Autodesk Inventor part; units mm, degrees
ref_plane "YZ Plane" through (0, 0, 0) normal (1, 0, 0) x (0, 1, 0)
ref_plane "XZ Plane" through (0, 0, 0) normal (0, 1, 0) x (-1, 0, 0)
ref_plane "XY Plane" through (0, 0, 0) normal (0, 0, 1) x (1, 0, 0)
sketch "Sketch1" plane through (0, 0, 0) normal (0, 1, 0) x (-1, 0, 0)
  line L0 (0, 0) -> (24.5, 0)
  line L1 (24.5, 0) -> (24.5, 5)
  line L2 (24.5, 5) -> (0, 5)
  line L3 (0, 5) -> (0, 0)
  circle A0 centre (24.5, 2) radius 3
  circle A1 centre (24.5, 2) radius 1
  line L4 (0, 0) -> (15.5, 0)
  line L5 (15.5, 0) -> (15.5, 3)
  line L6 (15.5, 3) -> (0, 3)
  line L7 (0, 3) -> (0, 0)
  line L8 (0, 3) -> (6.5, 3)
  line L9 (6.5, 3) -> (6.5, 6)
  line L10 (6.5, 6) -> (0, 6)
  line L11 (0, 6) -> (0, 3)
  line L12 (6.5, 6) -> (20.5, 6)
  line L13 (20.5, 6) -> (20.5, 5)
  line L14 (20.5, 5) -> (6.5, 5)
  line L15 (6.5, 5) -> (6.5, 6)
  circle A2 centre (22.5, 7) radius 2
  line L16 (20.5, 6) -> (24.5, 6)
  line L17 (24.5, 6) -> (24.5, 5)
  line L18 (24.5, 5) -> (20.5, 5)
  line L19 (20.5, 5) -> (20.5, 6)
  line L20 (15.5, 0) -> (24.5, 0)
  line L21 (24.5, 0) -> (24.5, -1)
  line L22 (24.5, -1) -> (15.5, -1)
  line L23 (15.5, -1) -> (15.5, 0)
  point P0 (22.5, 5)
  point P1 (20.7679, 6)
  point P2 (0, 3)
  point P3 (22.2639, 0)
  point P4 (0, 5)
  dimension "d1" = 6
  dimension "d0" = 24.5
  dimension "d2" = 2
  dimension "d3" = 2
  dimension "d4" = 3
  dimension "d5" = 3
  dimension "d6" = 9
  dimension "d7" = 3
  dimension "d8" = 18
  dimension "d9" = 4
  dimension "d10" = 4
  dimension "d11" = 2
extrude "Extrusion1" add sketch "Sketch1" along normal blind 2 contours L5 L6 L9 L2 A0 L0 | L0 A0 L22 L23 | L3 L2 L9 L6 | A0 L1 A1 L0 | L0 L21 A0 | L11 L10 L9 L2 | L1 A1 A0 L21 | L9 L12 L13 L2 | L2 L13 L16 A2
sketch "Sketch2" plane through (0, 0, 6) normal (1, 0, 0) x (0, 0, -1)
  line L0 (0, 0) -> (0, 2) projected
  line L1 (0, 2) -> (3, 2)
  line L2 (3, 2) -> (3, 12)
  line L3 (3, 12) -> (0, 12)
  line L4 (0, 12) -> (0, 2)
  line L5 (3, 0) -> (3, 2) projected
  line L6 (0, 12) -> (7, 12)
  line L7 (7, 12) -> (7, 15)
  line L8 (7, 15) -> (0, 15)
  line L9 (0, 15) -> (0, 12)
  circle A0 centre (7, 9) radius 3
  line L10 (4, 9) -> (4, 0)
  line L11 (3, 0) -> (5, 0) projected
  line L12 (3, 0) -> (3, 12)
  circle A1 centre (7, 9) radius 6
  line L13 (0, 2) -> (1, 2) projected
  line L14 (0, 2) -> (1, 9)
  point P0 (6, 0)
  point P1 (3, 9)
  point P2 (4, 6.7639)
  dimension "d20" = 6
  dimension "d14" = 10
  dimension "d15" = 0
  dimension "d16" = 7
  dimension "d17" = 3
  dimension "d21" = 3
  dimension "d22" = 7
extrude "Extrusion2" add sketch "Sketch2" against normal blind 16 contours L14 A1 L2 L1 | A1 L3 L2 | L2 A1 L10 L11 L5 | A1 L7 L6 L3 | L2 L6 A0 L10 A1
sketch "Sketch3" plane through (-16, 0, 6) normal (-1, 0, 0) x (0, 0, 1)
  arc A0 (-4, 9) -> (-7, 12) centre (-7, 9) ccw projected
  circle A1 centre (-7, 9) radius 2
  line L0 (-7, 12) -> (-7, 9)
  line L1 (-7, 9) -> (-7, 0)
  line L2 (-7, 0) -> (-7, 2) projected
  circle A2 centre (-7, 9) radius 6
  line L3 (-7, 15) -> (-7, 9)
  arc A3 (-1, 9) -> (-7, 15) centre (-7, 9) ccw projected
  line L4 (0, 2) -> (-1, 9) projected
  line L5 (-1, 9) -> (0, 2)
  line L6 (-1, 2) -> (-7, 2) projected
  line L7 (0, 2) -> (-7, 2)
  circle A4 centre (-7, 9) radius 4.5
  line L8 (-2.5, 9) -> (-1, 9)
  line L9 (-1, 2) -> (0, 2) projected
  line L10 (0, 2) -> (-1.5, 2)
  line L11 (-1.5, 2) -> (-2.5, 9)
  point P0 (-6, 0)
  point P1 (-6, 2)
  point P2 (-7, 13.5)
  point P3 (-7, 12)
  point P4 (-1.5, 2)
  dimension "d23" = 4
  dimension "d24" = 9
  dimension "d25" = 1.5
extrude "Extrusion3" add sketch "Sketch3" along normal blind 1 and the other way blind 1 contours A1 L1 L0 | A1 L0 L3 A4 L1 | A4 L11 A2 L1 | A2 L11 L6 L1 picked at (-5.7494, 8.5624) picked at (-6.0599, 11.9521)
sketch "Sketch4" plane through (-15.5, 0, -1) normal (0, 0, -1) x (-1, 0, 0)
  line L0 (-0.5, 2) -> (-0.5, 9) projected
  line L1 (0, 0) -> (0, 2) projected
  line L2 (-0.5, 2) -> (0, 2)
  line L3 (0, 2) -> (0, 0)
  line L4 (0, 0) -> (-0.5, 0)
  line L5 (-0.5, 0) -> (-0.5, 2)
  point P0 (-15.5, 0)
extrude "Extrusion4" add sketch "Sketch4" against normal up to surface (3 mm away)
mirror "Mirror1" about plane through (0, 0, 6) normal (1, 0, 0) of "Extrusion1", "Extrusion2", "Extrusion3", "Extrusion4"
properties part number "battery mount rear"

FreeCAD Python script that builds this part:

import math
import FreeCAD as App
import Part
import Sketcher
Q = App.Units.Quantity


def add_polygon(sketch, points):
    """Adds a closed chain of lines whose ends are joined by coincident constraints."""
    first, n = sketch.GeometryCount, len(points)
    for a, b in zip(points, points[1:] + points[:1]):
        sketch.addGeometry(Part.LineSegment(App.Vector(*a, 0), App.Vector(*b, 0)), False)
    for i in range(n):
        sketch.addConstraint(Sketcher.Constraint("Coincident", first + i, 2, first + (i + 1) % n, 1))

doc = App.newDocument("Part")
params = doc.addObject("Spreadsheet::Sheet", "Params")
for row, (alias, value) in enumerate([
    ("sketch1_diameter", "2 mm"),
    ("sketch1_radius", "3 mm"),
    ("sketch1_radius2", "2 mm"),
    ("sketch1_width", "9 mm"),
    ("sketch1_width2", "2 mm"),
    ("pad1_length", "2 mm"),
    ("sketch2_radius", "3 mm"),
    ("sketch2_radius2", "6 mm"),
    ("sketch2_width", "2 mm"),
    ("pad2_length", "16 mm"),
    ("sketch3_radius", "4.5 mm"),
    ("sketch3_width", "11.5 mm"),
    ("sketch3_height", "5.5 mm"),
    ("pad3_length", "1 mm"),
    ("pad3_length2", "1 mm"),
    ("sketch4_height", "2 mm"),
    ("sketch4_width", "0.5 mm"),
    ("pad4_length", "3 mm"),
], start=1):
    params.set(f"A{row}", alias)
    params.set(f"B{row}", "=" + value)
    params.setAlias(f"B{row}", alias)

body = doc.addObject("PartDesign::Body", "Body")

sketch1 = doc.addObject("Sketcher::SketchObject", "Sketch")
body.addObject(sketch1)
sketch1.AttachmentSupport = (doc.XZ_Plane, [""])
sketch1.MapMode = "FlatFace"
sketch1.addGeometry(Part.LineSegment(App.Vector(-15.5, 3, 0), App.Vector(-15.5, -1, 0)), False)
sketch1.addGeometry(Part.LineSegment(App.Vector(-15.5, -1, 0), App.Vector(-24.5, -1, 0)), False)
sketch1.addGeometry(Part.ArcOfCircle(Part.Circle(App.Vector(-24.5, 2, 0), App.Vector(0, 0, 1), 3), math.radians(90), math.radians(270)), False)
sketch1.addGeometry(Part.LineSegment(App.Vector(-24.5, 5, 0), App.Vector(-22.5, 5, 0)), False)
sketch1.addGeometry(Part.ArcOfCircle(Part.Circle(App.Vector(-22.5, 7, 0), App.Vector(0, 0, 1), 2), math.radians(-90), math.radians(-30)), False)
sketch1.addGeometry(Part.LineSegment(App.Vector(-20.8, 6, 0), App.Vector(0, 6, 0)), False)
sketch1.addGeometry(Part.LineSegment(App.Vector(0, 6, 0), App.Vector(0, 3, 0)), False)
sketch1.addGeometry(Part.LineSegment(App.Vector(0, 3, 0), App.Vector(-15.5, 3, 0)), False)
sketch1.addGeometry(Part.Circle(App.Vector(-24.5, 2, 0), App.Vector(0, 0, 1), 1), False)
sketch1.addConstraint(Sketcher.Constraint("Coincident", 0, 2, 1, 1))
sketch1.addConstraint(Sketcher.Constraint("Tangent", 1, 2, 2, 2))
sketch1.addConstraint(Sketcher.Constraint("Tangent", 2, 1, 3, 1))
sketch1.addConstraint(Sketcher.Constraint("Tangent", 3, 2, 4, 1))
sketch1.addConstraint(Sketcher.Constraint("Coincident", 4, 2, 5, 1))
sketch1.addConstraint(Sketcher.Constraint("Coincident", 5, 2, 6, 1))
sketch1.addConstraint(Sketcher.Constraint("Coincident", 6, 2, 7, 1))
sketch1.addConstraint(Sketcher.Constraint("Coincident", 7, 2, 0, 1))
sketch1.addConstraint(Sketcher.Constraint("Vertical", 0))
sketch1.addConstraint(Sketcher.Constraint("Horizontal", 1))
sketch1.addConstraint(Sketcher.Constraint("Horizontal", 3))
sketch1.addConstraint(Sketcher.Constraint("Horizontal", 5))
sketch1.addConstraint(Sketcher.Constraint("Vertical", 6))
sketch1.addConstraint(Sketcher.Constraint("Horizontal", 7))
sketch1.addConstraint(Sketcher.Constraint("Coincident", 8, 3, 2, 3))
sketch1.addConstraint(Sketcher.Constraint("PointOnObject", 5, 2, -2))
sketch1.addConstraint(Sketcher.Constraint("Diameter", 8, Q("2 mm")))
sketch1.addConstraint(Sketcher.Constraint("Radius", 2, Q("3 mm")))
sketch1.addConstraint(Sketcher.Constraint("Radius", 4, Q("2 mm")))
sketch1.addConstraint(Sketcher.Constraint("DistanceX", 1, 2, 1, 1, Q("9 mm")))
sketch1.addConstraint(Sketcher.Constraint("DistanceX", 3, 1, 3, 2, Q("2 mm")))
sketch1.addConstraint(Sketcher.Constraint("DistanceY", 0, 2, 0, 1, Q("4 mm")))
sketch1.addConstraint(Sketcher.Constraint("DistanceY", 6, 2, 6, 1, Q("3 mm")))
sketch1.addConstraint(Sketcher.Constraint("DistanceY", -1, 1, 2, 3, Q("2 mm")))
sketch1.addConstraint(Sketcher.Constraint("DistanceX", 2, 3, -1, 1, Q("24.5 mm")))
sketch1.setExpression("Constraints[16]", "Params.sketch1_diameter")
sketch1.setExpression("Constraints[17]", "Params.sketch1_radius")
sketch1.setExpression("Constraints[18]", "Params.sketch1_radius2")
sketch1.setExpression("Constraints[19]", "Params.sketch1_width")
sketch1.setExpression("Constraints[20]", "Params.sketch1_width2")
pad1 = doc.addObject("PartDesign::Pad", "Pad")
body.addObject(pad1)
pad1.Profile = sketch1
pad1.setExpression("Length", "Params.pad1_length")
pad1.Reversed = True

sketch2 = doc.addObject("Sketcher::SketchObject", "Sketch001")
body.addObject(sketch2)
sketch2.AttachmentSupport = (doc.YZ_Plane, [""])
sketch2.MapMode = "FlatFace"
sketch2.addGeometry(Part.LineSegment(App.Vector(9, 5, 0), App.Vector(2, 6, 0)), False)
sketch2.addGeometry(Part.LineSegment(App.Vector(2, 6, 0), App.Vector(2, 3, 0)), False)
sketch2.addGeometry(Part.LineSegment(App.Vector(2, 3, 0), App.Vector(0, 3, 0)), False)
sketch2.addGeometry(Part.LineSegment(App.Vector(0, 3, 0), App.Vector(0, 2, 0)), False)
sketch2.addGeometry(Part.LineSegment(App.Vector(0, 2, 0), App.Vector(9, 2, 0)), False)
sketch2.addGeometry(Part.ArcOfCircle(Part.Circle(App.Vector(9, -1, 0), App.Vector(0, 0, 1), 3), math.radians(0), math.radians(90)), False)
sketch2.addGeometry(Part.LineSegment(App.Vector(12, -1, 0), App.Vector(15, -1, 0)), False)
sketch2.addGeometry(Part.ArcOfCircle(Part.Circle(App.Vector(9, -1, 0), App.Vector(0, 0, 1), 6), math.radians(0), math.radians(90)), False)
sketch2.addConstraint(Sketcher.Constraint("Coincident", 0, 2, 1, 1))
sketch2.addConstraint(Sketcher.Constraint("Coincident", 1, 2, 2, 1))
sketch2.addConstraint(Sketcher.Constraint("Coincident", 2, 2, 3, 1))
sketch2.addConstraint(Sketcher.Constraint("Coincident", 3, 2, 4, 1))
sketch2.addConstraint(Sketcher.Constraint("Tangent", 4, 2, 5, 2))
sketch2.addConstraint(Sketcher.Constraint("Coincident", 5, 1, 6, 1))
sketch2.addConstraint(Sketcher.Constraint("Coincident", 6, 2, 7, 1))
sketch2.addConstraint(Sketcher.Constraint("Coincident", 7, 2, 0, 1))
sketch2.addConstraint(Sketcher.Constraint("Vertical", 1))
sketch2.addConstraint(Sketcher.Constraint("Horizontal", 2))
sketch2.addConstraint(Sketcher.Constraint("Vertical", 3))
sketch2.addConstraint(Sketcher.Constraint("Horizontal", 4))
sketch2.addConstraint(Sketcher.Constraint("Horizontal", 6))
sketch2.addConstraint(Sketcher.Constraint("Coincident", 7, 3, 5, 3))
sketch2.addConstraint(Sketcher.Constraint("PointOnObject", 2, 2, -2))
sketch2.addConstraint(Sketcher.Constraint("Horizontal", 7, 3, 5, 1))
sketch2.addConstraint(Sketcher.Constraint("Vertical", 4, 2, 7, 2))
sketch2.addConstraint(Sketcher.Constraint("Equal", 6, 1))
sketch2.addConstraint(Sketcher.Constraint("Radius", 5, Q("3 mm")))
sketch2.addConstraint(Sketcher.Constraint("Radius", 7, Q("6 mm")))
sketch2.addConstraint(Sketcher.Constraint("DistanceY", -1, 1, 0, 2, Q("6 mm")))
sketch2.addConstraint(Sketcher.Constraint("DistanceX", 0, 2, 5, 3, Q("7 mm")))
sketch2.addConstraint(Sketcher.Constraint("DistanceY", 5, 3, 0, 2, Q("7 mm")))
sketch2.addConstraint(Sketcher.Constraint("DistanceX", 2, 2, 2, 1, Q("2 mm")))
sketch2.setExpression("Constraints[18]", "Params.sketch2_radius")
sketch2.setExpression("Constraints[19]", "Params.sketch2_radius2")
sketch2.setExpression("Constraints[23]", "Params.sketch2_width")
pad2 = doc.addObject("PartDesign::Pad", "Pad001")
body.addObject(pad2)
pad2.Profile = sketch2
pad2.setExpression("Length", "Params.pad2_length")
pad2.Reversed = True

sketch3 = doc.addObject("Sketcher::SketchObject", "Sketch002")
body.addObject(sketch3)
sketch3.AttachmentSupport = (doc.YZ_Plane, [""])
sketch3.MapMode = "FlatFace"
sketch3.AttachmentOffset = App.Placement(App.Vector(0, 0, -16), App.Rotation())
sketch3.addGeometry(Part.LineSegment(App.Vector(2, -1, 0), App.Vector(2, 4.5, 0)), False)
sketch3.addGeometry(Part.LineSegment(App.Vector(2, 4.5, 0), App.Vector(9, 3.5, 0)), False)
sketch3.addGeometry(Part.ArcOfCircle(Part.Circle(App.Vector(9, -1, 0), App.Vector(0, 0, 1), 4.5), math.radians(0), math.radians(90)), False)
sketch3.addGeometry(Part.LineSegment(App.Vector(13.5, -1, 0), App.Vector(2, -1, 0)), False)
sketch3.addConstraint(Sketcher.Constraint("Coincident", 0, 2, 1, 1))
sketch3.addConstraint(Sketcher.Constraint("Coincident", 1, 2, 2, 2))
sketch3.addConstraint(Sketcher.Constraint("Coincident", 2, 1, 3, 1))
sketch3.addConstraint(Sketcher.Constraint("Coincident", 3, 2, 0, 1))
sketch3.addConstraint(Sketcher.Constraint("Vertical", 0))
sketch3.addConstraint(Sketcher.Constraint("Horizontal", 3))
sketch3.addConstraint(Sketcher.Constraint("Vertical", 2, 3, 1, 2))
sketch3.addConstraint(Sketcher.Constraint("Radius", 2, Q("4.5 mm")))
sketch3.addConstraint(Sketcher.Constraint("DistanceX", -1, 1, 2, 3, Q("9 mm")))
sketch3.addConstraint(Sketcher.Constraint("DistanceX", 3, 2, 3, 1, Q("11.5 mm")))
sketch3.addConstraint(Sketcher.Constraint("DistanceY", 0, 1, 0, 2, Q("5.5 mm")))
sketch3.addConstraint(Sketcher.Constraint("DistanceY", 2, 3, -1, 1, Q("1 mm")))
sketch3.addConstraint(Sketcher.Constraint("DistanceY", 2, 1, -1, 1, Q("1 mm")))
sketch3.setExpression("Constraints[7]", "Params.sketch3_radius")
sketch3.setExpression("Constraints[9]", "Params.sketch3_width")
sketch3.setExpression("Constraints[10]", "Params.sketch3_height")
pad3 = doc.addObject("PartDesign::Pad", "Pad002")
body.addObject(pad3)
pad3.Profile = sketch3
pad3.Type = "TwoLengths"
pad3.setExpression("Length", "Params.pad3_length")
pad3.setExpression("Length2", "Params.pad3_length2")
pad3.Reversed = True

sketch4 = doc.addObject("Sketcher::SketchObject", "Sketch003")
body.addObject(sketch4)
sketch4.AttachmentSupport = (doc.XY_Plane, [""])
sketch4.MapMode = "FlatFace"
sketch4.AttachmentOffset = App.Placement(App.Vector(0, 0, -1), App.Rotation())
add_polygon(sketch4, [(-15, 0), (-15.5, 0), (-15.5, 2), (-15, 2)])
sketch4.addConstraint(Sketcher.Constraint("Horizontal", 0))
sketch4.addConstraint(Sketcher.Constraint("Vertical", 1))
sketch4.addConstraint(Sketcher.Constraint("Horizontal", 2))
sketch4.addConstraint(Sketcher.Constraint("Vertical", 3))
sketch4.addConstraint(Sketcher.Constraint("PointOnObject", 0, 2, -1))
sketch4.addConstraint(Sketcher.Constraint("DistanceY", 1, 1, 1, 2, Q("2 mm")))
sketch4.addConstraint(Sketcher.Constraint("DistanceX", 0, 2, 0, 1, Q("0.5 mm")))
sketch4.addConstraint(Sketcher.Constraint("DistanceX", 2, 2, -1, 1, Q("15 mm")))
sketch4.setExpression("Constraints[9]", "Params.sketch4_height")
sketch4.setExpression("Constraints[10]", "Params.sketch4_width")
pad4 = doc.addObject("PartDesign::Pad", "Pad003")
body.addObject(pad4)
pad4.Profile = sketch4
pad4.setExpression("Length", "Params.pad4_length")
doc.recompute()

mirrored = doc.addObject("PartDesign::Mirrored", "Mirrored")
body.addObject(mirrored)
mirrored.Originals = [pad1, pad2, pad3, pad4]
mirrored.MirrorPlane = (doc.YZ_Plane, [""])
body.Tip = mirrored

doc.recompute()
